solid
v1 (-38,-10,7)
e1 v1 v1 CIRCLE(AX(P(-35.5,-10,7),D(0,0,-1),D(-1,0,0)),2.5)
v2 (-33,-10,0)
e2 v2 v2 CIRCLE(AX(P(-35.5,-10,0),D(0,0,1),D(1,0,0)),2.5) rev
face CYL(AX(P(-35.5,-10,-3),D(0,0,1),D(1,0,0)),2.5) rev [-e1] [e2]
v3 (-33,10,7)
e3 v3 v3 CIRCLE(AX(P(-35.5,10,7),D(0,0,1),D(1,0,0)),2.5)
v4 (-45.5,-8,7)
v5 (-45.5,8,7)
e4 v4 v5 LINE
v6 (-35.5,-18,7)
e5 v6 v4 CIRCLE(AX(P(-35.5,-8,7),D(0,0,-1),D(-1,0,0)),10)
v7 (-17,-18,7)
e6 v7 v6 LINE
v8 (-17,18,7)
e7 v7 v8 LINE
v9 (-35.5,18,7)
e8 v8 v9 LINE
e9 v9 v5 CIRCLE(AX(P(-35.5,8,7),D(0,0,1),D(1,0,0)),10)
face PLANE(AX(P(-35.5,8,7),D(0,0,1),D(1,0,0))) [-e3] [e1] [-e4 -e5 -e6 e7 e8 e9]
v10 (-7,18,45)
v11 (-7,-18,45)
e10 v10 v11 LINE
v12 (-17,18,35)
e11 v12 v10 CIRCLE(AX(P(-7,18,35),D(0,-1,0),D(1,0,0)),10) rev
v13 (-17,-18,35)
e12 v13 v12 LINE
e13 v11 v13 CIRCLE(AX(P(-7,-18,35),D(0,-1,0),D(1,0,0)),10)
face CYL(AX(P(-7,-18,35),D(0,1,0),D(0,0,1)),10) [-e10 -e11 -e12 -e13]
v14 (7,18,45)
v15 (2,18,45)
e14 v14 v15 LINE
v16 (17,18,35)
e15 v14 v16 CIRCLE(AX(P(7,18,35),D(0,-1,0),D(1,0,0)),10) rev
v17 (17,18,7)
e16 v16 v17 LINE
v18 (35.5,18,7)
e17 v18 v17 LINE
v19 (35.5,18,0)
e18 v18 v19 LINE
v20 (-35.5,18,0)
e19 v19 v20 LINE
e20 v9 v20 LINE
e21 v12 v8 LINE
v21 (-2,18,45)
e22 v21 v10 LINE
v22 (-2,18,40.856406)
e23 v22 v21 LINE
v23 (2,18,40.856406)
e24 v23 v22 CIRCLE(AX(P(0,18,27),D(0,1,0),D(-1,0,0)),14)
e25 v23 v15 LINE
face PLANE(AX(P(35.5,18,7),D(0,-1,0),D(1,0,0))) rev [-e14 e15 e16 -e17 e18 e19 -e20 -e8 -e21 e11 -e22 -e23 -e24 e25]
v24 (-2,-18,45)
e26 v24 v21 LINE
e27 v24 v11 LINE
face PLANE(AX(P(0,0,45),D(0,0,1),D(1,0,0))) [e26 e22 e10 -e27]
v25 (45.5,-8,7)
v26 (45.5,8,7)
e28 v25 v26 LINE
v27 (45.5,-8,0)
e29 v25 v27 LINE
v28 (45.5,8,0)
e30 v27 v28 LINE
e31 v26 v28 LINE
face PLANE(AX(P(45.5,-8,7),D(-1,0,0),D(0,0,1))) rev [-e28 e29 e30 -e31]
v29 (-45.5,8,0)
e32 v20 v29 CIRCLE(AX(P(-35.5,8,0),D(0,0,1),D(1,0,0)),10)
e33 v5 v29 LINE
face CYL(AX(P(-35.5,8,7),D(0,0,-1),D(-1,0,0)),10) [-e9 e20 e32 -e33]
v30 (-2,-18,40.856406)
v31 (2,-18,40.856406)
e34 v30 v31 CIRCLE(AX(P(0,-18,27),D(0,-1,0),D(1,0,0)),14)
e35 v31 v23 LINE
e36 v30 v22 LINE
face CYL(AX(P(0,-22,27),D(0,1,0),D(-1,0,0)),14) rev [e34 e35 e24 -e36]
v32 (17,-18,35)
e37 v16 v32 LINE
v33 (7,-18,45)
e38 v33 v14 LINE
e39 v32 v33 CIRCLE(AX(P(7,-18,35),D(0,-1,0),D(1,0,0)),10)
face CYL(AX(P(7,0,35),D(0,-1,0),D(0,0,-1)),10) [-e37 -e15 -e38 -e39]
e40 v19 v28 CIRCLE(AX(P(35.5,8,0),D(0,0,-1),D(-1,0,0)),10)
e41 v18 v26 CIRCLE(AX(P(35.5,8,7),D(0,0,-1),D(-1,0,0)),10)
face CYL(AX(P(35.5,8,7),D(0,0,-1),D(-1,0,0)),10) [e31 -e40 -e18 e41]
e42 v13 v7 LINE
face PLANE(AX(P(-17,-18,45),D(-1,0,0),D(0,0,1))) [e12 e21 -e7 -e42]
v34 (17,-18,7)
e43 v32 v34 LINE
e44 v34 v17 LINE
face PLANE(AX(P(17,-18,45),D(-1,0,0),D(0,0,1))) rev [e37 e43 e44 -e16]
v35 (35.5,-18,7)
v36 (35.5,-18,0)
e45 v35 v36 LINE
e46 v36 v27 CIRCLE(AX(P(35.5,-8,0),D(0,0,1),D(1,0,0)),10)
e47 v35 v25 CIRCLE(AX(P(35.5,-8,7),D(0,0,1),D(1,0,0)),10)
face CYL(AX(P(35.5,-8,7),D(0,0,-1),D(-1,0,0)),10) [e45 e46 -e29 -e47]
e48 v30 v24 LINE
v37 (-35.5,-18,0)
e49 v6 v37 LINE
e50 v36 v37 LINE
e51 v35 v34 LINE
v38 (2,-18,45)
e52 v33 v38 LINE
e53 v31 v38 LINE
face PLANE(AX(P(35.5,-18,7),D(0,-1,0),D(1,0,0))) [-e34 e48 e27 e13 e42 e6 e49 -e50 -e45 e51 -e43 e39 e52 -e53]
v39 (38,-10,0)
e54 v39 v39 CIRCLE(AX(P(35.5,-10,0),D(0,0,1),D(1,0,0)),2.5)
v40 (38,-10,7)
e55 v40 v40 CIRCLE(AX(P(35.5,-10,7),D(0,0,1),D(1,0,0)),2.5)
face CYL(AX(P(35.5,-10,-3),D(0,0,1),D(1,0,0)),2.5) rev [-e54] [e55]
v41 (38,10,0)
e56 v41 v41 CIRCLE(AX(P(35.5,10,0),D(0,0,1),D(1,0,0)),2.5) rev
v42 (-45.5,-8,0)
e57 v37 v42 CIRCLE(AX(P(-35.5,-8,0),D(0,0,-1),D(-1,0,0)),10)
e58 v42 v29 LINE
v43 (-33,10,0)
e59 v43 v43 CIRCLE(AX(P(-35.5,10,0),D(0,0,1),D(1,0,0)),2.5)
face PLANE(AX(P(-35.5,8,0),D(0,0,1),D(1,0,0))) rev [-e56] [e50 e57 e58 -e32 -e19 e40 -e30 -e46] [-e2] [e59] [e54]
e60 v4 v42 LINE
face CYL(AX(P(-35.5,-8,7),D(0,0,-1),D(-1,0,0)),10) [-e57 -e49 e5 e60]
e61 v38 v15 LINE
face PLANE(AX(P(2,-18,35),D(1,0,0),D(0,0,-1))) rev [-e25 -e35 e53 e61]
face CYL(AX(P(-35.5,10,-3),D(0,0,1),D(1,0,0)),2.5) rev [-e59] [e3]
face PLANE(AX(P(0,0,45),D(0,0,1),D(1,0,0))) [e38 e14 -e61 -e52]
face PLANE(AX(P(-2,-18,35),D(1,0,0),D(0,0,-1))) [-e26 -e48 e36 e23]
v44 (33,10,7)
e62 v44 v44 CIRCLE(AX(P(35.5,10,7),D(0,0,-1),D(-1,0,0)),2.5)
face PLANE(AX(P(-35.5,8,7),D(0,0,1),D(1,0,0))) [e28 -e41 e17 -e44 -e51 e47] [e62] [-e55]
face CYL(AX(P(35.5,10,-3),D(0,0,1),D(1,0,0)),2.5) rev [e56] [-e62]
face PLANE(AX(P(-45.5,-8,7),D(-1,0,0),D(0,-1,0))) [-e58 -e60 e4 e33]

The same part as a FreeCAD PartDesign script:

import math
import FreeCAD as App
import Part
import Sketcher

V = App.Vector
Q = App.Units.Quantity


def edges_at(feature, points):
    """Names of the edges that pass closest to the given points."""
    edges = feature.Shape.Edges
    near = lambda p: min(range(len(edges)), key=lambda i: edges[i].distToShape(Part.Vertex(*p))[0])
    return sorted({f"Edge{near(p) + 1}" for p in points})

doc = App.newDocument("Part")
params = doc.addObject("Spreadsheet::Sheet", "Params")
for row, (alias, value) in enumerate([
    ("sketch1_radius", "10 mm"),
    ("sketch1_width", "71 mm"),
    ("sketch1_height", "16 mm"),
    ("pad1_length", "7 mm"),
    ("sketch2_diameter", "5 mm"),
    ("pocket1_length", "10 mm"),
    ("sketch3_width", "34 mm"),
    ("sketch3_height", "36 mm"),
    ("pad2_length", "38 mm"),
    ("sketch4_diameter", "28 mm"),
    ("pocket2_length", "40 mm"),
    ("sketch5_width", "4 mm"),
    ("sketch5_height", "36 mm"),
    ("pocket3_length", "10 mm"),
    ("fillet_radius", "10 mm"),
], start=1):
    params.set(f"A{row}", alias)
    params.set(f"B{row}", "=" + value)
    params.setAlias(f"B{row}", alias)

body = doc.addObject("PartDesign::Body", "Body")

# Sketch on XY plane
sketch1 = body.newObject("Sketcher::SketchObject", "Sketch")
sketch1.AttachmentSupport = (doc.getObject("XY_Plane"), [""])
sketch1.MapMode = "FlatFace"
sketch1.addGeometry([
    Part.LineSegment(V(-36, -18, 0), V(36, -18, 0)),  # 0
    Part.ArcOfCircle(Part.Circle(V(36, -8, 0), V(0, 0, 1), 10), math.radians(-90), math.radians(0)),  # 1
    Part.LineSegment(V(46, -8, 0), V(46, 8, 0)),  # 2
    Part.ArcOfCircle(Part.Circle(V(36, 8, 0), V(0, 0, 1), 10), math.radians(0), math.radians(90)),  # 3
    Part.LineSegment(V(36, 18, 0), V(-36, 18, 0)),  # 4
    Part.ArcOfCircle(Part.Circle(V(-36, 8, 0), V(0, 0, 1), 10), math.radians(90), math.radians(180)),  # 5
    Part.LineSegment(V(-46, 8, 0), V(-46, -8, 0)),  # 6
    Part.ArcOfCircle(Part.Circle(V(-36, -8, 0), V(0, 0, 1), 10), math.radians(180), math.radians(270)),  # 7
], False)
sketch1.addConstraint([
    Sketcher.Constraint("Tangent", 0, 2, 1, 1),
    Sketcher.Constraint("Tangent", 1, 2, 2, 1),
    Sketcher.Constraint("Tangent", 2, 2, 3, 1),
    Sketcher.Constraint("Tangent", 3, 2, 4, 1),
    Sketcher.Constraint("Tangent", 4, 2, 5, 1),
    Sketcher.Constraint("Tangent", 5, 2, 6, 1),
    Sketcher.Constraint("Tangent", 6, 2, 7, 1),
    Sketcher.Constraint("Tangent", 7, 2, 0, 1),
    Sketcher.Constraint("Horizontal", 0),
    Sketcher.Constraint("Vertical", 2),
    Sketcher.Constraint("Horizontal", 4),
    Sketcher.Constraint("Vertical", 6),
    Sketcher.Constraint("Equal", 1, 3),
    Sketcher.Constraint("Equal", 3, 5),
    Sketcher.Constraint("Equal", 5, 7),
    Sketcher.Constraint("Symmetric", 1, 3, 5, 3, -1, 1),
    Sketcher.Constraint("Radius", 1, Q("10 mm")),
    Sketcher.Constraint("DistanceX", 0, 1, 0, 2, Q("71 mm")),
    Sketcher.Constraint("DistanceY", 2, 1, 2, 2, Q("16 mm")),
])
sketch1.setExpression("Constraints[16]", "Params.sketch1_radius")
sketch1.setExpression("Constraints[17]", "Params.sketch1_width")
sketch1.setExpression("Constraints[18]", "Params.sketch1_height")
pad1 = body.newObject("PartDesign::Pad", "Pad")
pad1.Profile = sketch1
pad1.setExpression("Length", "Params.pad1_length")

# Sketch on XY plane
sketch2 = body.newObject("Sketcher::SketchObject", "Sketch001")
sketch2.AttachmentSupport = (doc.getObject("XY_Plane"), [""])
sketch2.MapMode = "FlatFace"
sketch2.AttachmentOffset = App.Placement(V(0, 0, 7), App.Rotation())
sketch2.addGeometry([
    Part.Circle(V(-35.5, 10, 0), V(0, 0, 1), 2.5),
    Part.Circle(V(35.5, 10, 0), V(0, 0, 1), 2.5),
    Part.Circle(V(35.5, -10, 0), V(0, 0, 1), 2.5),
    Part.Circle(V(-35.5, -10, 0), V(0, 0, 1), 2.5),
], False)
sketch2.addConstraint([
    Sketcher.Constraint("Equal", 0, 1),
    Sketcher.Constraint("Equal", 1, 2),
    Sketcher.Constraint("Equal", 2, 3),
    Sketcher.Constraint("Symmetric", 0, 3, 2, 3, -1, 1),
    Sketcher.Constraint("Symmetric", 1, 3, 3, 3, -1, 1),
    Sketcher.Constraint("Symmetric", 0, 3, 1, 3, -2),
    Sketcher.Constraint("Diameter", 0, Q("5 mm")),
    Sketcher.Constraint("DistanceY", -1, 1, 0, 3, Q("10 mm")),
    Sketcher.Constraint("DistanceX", 0, 3, 1, 3, Q("71 mm")),
])
sketch2.setExpression("Constraints[6]", "Params.sketch2_diameter")
pocket1 = body.newObject("PartDesign::Pocket", "Pocket")
pocket1.Profile = sketch2
pocket1.setExpression("Length", "Params.pocket1_length")

# Sketch on XY plane
sketch3 = body.newObject("Sketcher::SketchObject", "Sketch002")
sketch3.AttachmentSupport = (doc.getObject("XY_Plane"), [""])
sketch3.MapMode = "FlatFace"
sketch3.AttachmentOffset = App.Placement(V(0, 0, 7), App.Rotation())
sketch3.addGeometry([
    Part.LineSegment(V(-17, 18, 0), V(-17, -18, 0)),
    Part.LineSegment(V(-17, -18, 0), V(17, -18, 0)),
    Part.LineSegment(V(17, -18, 0), V(17, 18, 0)),
    Part.LineSegment(V(17, 18, 0), V(-17, 18, 0)),
], False)
sketch3.addConstraint([
    Sketcher.Constraint("Coincident", 0, 2, 1, 1),
    Sketcher.Constraint("Coincident", 1, 2, 2, 1),
    Sketcher.Constraint("Coincident", 2, 2, 3, 1),
    Sketcher.Constraint("Coincident", 3, 2, 0, 1),
    Sketcher.Constraint("Vertical", 0),
    Sketcher.Constraint("Horizontal", 1),
    Sketcher.Constraint("Vertical", 2),
    Sketcher.Constraint("Horizontal", 3),
    Sketcher.Constraint("Symmetric", 0, 2, 2, 2, -1, 1),
    Sketcher.Constraint("DistanceX", 1, 1, 1, 2, Q("34 mm")),
    Sketcher.Constraint("DistanceY", 0, 2, 0, 1, Q("36 mm")),
])
sketch3.setExpression("Constraints[9]", "Params.sketch3_width")
sketch3.setExpression("Constraints[10]", "Params.sketch3_height")
pad2 = body.newObject("PartDesign::Pad", "Pad001")
pad2.Profile = sketch3
pad2.setExpression("Length", "Params.pad2_length")

# Sketch on XZ plane
sketch4 = body.newObject("Sketcher::SketchObject", "Sketch003")
sketch4.AttachmentSupport = (doc.getObject("XZ_Plane"), [""])
sketch4.MapMode = "FlatFace"
sketch4.AttachmentOffset = App.Placement(V(0, 0, -18), App.Rotation())
sketch4.addGeometry(Part.Circle(V(0, 27, 0), V(0, 0, 1), 14), False)
sketch4.addConstraint([
    Sketcher.Constraint("PointOnObject", 0, 3, -2),
    Sketcher.Constraint("Diameter", 0, Q("28 mm")),
    Sketcher.Constraint("DistanceY", -1, 1, 0, 3, Q("27 mm")),
])
sketch4.setExpression("Constraints[1]", "Params.sketch4_diameter")
pocket2 = body.newObject("PartDesign::Pocket", "Pocket001")
pocket2.Profile = sketch4
pocket2.setExpression("Length", "Params.pocket2_length")
pocket2.Reversed = True

# Sketch on XY plane
sketch5 = body.newObject("Sketcher::SketchObject", "Sketch004")
sketch5.AttachmentSupport = (doc.getObject("XY_Plane"), [""])
sketch5.MapMode = "FlatFace"
sketch5.AttachmentOffset = App.Placement(V(0, 0, 45), App.Rotation())
sketch5.addGeometry([
    Part.LineSegment(V(-2, 18, 0), V(-2, -18, 0)),
    Part.LineSegment(V(-2, -18, 0), V(2, -18, 0)),
    Part.LineSegment(V(2, -18, 0), V(2, 18, 0)),
    Part.LineSegment(V(2, 18, 0), V(-2, 18, 0)),
], False)
sketch5.addConstraint([
    Sketcher.Constraint("Coincident", 0, 2, 1, 1),
    Sketcher.Constraint("Coincident", 1, 2, 2, 1),
    Sketcher.Constraint("Coincident", 2, 2, 3, 1),
    Sketcher.Constraint("Coincident", 3, 2, 0, 1),
    Sketcher.Constraint("Vertical", 0),
    Sketcher.Constraint("Horizontal", 1),
    Sketcher.Constraint("Vertical", 2),
    Sketcher.Constraint("Horizontal", 3),
    Sketcher.Constraint("Symmetric", 0, 2, 2, 2, -1, 1),
    Sketcher.Constraint("DistanceX", 1, 1, 1, 2, Q("4 mm")),
    Sketcher.Constraint("DistanceY", 0, 2, 0, 1, Q("36 mm")),
])
sketch5.setExpression("Constraints[9]", "Params.sketch5_width")
sketch5.setExpression("Constraints[10]", "Params.sketch5_height")
pocket3 = body.newObject("PartDesign::Pocket", "Pocket002")
pocket3.Profile = sketch5
pocket3.setExpression("Length", "Params.pocket3_length")
doc.recompute()

fillet = body.newObject("PartDesign::Fillet", "Fillet")
fillet.Base = (pocket3, edges_at(pocket3, [(-17, 0, 45), (17, 0, 45)]))
fillet.setExpression("Radius", "Params.fillet_radius")

doc.recompute()
